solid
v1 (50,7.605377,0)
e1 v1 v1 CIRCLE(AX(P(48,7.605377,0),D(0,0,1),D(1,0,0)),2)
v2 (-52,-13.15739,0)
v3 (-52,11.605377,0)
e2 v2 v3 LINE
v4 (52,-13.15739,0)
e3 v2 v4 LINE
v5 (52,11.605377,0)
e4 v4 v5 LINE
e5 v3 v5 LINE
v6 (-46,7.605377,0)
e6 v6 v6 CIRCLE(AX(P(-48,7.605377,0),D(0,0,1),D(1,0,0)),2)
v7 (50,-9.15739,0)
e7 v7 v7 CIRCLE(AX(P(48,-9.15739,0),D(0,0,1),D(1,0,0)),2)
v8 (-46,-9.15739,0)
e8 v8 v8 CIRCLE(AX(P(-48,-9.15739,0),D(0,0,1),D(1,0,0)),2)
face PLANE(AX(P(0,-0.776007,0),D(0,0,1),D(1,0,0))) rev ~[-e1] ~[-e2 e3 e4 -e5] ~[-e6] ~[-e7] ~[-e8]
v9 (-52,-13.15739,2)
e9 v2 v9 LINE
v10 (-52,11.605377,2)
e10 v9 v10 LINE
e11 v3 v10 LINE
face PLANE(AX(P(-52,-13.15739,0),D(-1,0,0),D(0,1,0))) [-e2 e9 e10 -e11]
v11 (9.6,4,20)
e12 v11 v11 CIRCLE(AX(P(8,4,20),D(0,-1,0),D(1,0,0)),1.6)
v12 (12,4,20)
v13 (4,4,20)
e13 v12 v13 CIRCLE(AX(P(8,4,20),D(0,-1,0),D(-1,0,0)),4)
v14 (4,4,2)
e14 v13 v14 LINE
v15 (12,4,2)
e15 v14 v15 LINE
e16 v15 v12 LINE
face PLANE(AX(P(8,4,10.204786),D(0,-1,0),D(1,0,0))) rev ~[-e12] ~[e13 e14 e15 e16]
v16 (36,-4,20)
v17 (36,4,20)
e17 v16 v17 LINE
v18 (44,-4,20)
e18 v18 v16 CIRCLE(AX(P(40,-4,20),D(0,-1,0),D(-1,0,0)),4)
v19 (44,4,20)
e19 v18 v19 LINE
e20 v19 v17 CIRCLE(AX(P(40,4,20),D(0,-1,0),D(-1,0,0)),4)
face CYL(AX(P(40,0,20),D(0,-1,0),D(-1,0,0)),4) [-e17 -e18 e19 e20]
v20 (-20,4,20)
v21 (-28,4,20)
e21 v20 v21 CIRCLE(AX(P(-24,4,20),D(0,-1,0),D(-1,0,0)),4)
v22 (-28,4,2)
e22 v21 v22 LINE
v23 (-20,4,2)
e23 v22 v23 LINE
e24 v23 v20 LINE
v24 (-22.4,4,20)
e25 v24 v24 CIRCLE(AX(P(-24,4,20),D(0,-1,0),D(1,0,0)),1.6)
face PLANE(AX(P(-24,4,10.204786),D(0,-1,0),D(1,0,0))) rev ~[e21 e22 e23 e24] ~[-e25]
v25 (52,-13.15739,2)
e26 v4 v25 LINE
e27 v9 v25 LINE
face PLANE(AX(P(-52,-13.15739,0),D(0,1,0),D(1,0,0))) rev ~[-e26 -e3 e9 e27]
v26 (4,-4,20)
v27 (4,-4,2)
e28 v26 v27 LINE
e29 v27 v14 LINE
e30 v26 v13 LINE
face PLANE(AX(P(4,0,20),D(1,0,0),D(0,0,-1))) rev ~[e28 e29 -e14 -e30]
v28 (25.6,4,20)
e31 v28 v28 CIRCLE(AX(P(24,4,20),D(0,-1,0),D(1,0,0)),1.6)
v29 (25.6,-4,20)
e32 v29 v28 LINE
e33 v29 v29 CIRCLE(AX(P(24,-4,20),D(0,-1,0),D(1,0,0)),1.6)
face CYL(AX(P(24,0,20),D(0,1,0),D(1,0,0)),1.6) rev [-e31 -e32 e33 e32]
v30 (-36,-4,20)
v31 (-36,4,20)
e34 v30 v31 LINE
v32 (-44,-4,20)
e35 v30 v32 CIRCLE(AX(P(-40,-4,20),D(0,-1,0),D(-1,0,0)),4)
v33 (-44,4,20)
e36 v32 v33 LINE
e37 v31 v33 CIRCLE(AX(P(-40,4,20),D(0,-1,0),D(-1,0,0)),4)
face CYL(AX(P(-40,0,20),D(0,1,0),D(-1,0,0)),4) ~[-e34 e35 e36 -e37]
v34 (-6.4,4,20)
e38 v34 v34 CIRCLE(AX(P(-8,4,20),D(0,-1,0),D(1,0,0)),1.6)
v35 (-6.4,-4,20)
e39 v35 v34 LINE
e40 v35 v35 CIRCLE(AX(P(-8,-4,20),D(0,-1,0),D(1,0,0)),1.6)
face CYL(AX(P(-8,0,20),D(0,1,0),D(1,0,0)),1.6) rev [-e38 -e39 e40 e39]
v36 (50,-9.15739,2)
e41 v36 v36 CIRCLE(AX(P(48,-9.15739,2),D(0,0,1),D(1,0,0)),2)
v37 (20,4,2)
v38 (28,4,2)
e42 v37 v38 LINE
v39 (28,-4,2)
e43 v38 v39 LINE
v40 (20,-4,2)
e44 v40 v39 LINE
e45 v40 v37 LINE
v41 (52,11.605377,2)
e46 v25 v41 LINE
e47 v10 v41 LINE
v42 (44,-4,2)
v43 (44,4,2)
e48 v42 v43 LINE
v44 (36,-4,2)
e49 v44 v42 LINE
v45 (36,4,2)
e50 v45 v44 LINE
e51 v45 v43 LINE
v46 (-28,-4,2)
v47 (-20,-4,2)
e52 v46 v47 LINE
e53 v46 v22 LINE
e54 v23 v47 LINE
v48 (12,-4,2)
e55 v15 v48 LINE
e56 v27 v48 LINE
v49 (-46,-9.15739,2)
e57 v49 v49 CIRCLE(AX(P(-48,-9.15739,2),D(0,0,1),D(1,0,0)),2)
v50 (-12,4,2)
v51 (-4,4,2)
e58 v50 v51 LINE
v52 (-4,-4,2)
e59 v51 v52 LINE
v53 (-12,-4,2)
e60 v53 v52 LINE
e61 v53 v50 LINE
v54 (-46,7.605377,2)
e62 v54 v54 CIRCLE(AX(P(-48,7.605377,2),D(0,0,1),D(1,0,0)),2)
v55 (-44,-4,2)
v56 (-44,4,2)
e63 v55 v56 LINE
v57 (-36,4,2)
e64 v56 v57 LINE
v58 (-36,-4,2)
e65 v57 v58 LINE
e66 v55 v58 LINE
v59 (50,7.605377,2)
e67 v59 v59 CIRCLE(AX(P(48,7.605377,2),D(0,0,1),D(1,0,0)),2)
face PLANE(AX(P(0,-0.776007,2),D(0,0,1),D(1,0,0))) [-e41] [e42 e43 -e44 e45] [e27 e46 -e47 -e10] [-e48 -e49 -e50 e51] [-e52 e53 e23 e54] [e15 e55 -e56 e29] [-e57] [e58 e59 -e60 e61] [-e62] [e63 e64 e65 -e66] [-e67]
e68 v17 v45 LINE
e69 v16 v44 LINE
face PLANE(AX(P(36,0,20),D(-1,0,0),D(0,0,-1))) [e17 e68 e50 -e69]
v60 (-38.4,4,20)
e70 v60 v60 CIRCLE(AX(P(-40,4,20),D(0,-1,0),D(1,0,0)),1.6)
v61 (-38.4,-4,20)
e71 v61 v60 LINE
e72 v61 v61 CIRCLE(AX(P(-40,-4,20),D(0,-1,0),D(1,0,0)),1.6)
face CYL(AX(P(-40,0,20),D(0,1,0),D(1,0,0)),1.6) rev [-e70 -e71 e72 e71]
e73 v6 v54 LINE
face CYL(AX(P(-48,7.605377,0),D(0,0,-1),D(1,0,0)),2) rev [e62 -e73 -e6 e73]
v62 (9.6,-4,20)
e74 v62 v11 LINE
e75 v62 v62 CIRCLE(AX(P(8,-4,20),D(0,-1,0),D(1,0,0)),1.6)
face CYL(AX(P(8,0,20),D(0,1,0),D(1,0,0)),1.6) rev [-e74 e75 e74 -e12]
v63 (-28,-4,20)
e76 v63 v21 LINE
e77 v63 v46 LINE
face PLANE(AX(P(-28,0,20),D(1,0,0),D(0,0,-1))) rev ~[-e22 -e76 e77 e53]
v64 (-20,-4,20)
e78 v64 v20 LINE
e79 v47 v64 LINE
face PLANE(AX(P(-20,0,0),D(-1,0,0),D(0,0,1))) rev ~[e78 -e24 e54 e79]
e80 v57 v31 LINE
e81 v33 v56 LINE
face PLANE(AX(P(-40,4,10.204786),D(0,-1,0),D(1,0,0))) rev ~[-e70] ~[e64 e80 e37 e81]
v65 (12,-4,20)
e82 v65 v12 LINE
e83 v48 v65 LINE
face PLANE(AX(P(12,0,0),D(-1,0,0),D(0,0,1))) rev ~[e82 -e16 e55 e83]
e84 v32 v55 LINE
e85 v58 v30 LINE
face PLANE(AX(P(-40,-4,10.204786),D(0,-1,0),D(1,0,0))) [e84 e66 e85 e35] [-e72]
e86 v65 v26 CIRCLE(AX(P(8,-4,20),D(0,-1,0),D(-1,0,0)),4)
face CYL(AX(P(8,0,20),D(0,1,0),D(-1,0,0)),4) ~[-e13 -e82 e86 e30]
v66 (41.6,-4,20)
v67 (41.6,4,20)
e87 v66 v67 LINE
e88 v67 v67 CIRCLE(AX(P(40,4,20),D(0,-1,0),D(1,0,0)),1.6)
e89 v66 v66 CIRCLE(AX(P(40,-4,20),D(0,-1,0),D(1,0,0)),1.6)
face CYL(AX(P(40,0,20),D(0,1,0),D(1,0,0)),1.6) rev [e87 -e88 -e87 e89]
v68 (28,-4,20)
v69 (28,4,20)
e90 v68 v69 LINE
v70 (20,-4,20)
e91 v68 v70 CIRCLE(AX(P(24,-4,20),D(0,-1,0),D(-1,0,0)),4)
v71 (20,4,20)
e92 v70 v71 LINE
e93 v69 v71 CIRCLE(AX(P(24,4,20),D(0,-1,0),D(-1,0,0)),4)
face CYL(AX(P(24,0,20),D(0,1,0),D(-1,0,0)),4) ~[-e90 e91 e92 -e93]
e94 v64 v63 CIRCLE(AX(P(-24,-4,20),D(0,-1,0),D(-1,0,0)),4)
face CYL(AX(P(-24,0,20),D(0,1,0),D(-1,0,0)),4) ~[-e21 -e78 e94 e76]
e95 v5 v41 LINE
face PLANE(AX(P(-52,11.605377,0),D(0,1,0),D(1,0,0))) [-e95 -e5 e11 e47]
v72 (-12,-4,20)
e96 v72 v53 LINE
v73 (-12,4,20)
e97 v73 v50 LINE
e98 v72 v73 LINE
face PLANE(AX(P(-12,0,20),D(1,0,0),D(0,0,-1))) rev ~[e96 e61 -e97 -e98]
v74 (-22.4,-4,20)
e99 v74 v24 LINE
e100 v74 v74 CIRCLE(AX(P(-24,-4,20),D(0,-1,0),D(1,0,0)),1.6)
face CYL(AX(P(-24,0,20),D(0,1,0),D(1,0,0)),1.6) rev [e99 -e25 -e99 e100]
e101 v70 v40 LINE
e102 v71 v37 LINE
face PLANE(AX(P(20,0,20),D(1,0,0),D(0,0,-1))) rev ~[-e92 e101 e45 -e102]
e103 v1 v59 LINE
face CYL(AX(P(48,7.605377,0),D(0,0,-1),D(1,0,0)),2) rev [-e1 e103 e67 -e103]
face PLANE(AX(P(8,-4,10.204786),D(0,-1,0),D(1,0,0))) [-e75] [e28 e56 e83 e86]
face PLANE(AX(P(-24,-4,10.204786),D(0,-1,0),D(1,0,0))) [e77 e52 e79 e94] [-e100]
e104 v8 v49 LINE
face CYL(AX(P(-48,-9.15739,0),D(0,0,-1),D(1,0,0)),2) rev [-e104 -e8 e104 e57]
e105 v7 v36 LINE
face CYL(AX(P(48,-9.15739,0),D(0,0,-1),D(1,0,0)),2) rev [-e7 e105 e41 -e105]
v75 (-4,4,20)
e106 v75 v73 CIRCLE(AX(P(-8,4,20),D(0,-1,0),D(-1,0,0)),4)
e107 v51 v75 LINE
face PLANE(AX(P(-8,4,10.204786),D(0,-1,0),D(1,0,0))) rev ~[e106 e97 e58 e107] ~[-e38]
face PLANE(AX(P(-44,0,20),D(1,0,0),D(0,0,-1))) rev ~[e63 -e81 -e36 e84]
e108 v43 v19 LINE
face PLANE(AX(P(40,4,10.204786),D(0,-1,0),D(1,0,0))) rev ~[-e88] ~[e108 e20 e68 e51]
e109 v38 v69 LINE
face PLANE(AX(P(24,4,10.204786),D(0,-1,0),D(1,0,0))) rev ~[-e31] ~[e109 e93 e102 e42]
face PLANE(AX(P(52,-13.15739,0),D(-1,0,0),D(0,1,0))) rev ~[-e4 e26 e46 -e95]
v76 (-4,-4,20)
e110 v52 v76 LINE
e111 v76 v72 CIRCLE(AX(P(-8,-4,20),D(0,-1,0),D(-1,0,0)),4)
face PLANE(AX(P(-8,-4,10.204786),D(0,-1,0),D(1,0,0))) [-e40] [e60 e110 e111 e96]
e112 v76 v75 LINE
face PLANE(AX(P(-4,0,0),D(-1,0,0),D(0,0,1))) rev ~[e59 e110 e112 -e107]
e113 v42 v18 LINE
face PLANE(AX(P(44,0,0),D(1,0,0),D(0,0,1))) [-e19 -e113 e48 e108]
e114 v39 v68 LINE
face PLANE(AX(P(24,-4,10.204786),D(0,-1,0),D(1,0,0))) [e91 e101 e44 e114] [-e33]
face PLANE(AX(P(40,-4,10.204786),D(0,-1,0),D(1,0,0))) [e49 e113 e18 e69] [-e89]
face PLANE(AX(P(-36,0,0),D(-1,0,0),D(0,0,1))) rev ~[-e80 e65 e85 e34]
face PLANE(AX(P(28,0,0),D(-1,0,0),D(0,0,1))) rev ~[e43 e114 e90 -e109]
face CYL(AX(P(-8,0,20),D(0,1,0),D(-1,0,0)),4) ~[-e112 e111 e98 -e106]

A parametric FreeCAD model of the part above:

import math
import FreeCAD as App
import Part
import Sketcher
from FreeCAD import Vector
Q = App.Units.Quantity


def add_polygon(sketch, points):
    """Adds a closed chain of lines whose ends are joined by coincident constraints."""
    first, n = sketch.GeometryCount, len(points)
    for a, b in zip(points, points[1:] + points[:1]):
        sketch.addGeometry(Part.LineSegment(App.Vector(*a, 0), App.Vector(*b, 0)), False)
    for i in range(n):
        sketch.addConstraint(Sketcher.Constraint("Coincident", first + i, 2, first + (i + 1) % n, 1))

doc = App.newDocument("Part")
body = doc.addObject("PartDesign::Body", "Body")

# Sketch on XY plane
sketch1 = body.newObject("Sketcher::SketchObject", "Sketch")
sketch1.AttachmentSupport = (doc.getObject("XY_Plane"), [""])
sketch1.MapMode = "FlatFace"
add_polygon(sketch1, [(-52, 11.6), (-52, -13.2), (52, -13.2), (52, 11.6)])  # lines 0-3
sketch1.addGeometry(Part.Circle(Vector(-48, -9.2, 0), Vector(0, 0, 1), 2), False)  # 4
sketch1.addGeometry(Part.Circle(Vector(48, -9.2, 0), Vector(0, 0, 1), 2), False)  # 5
sketch1.addGeometry(Part.Circle(Vector(-48, 7.6, 0), Vector(0, 0, 1), 2), False)  # 6
sketch1.addGeometry(Part.Circle(Vector(48, 7.6, 0), Vector(0, 0, 1), 2), False)  # 7
sketch1.addConstraint([
    Sketcher.Constraint("Vertical", 0),
    Sketcher.Constraint("Horizontal", 1),
    Sketcher.Constraint("Vertical", 2),
    Sketcher.Constraint("Horizontal", 3),
    Sketcher.Constraint("Equal", 4, 5),
    Sketcher.Constraint("Equal", 5, 6),
    Sketcher.Constraint("Equal", 6, 7),
    Sketcher.Constraint("Symmetric", 4, 3, 5, 3, -2),
    Sketcher.Constraint("Symmetric", 6, 3, 7, 3, -2),
    Sketcher.Constraint("Vertical", 4, 3, 6, 3),
    Sketcher.Constraint("Diameter", 4, Q("4 mm")),
    Sketcher.Constraint("DistanceX", 1, 1, 1, 2, Q("104 mm")),
    Sketcher.Constraint("DistanceX", 4, 3, -1, 1, Q("48 mm")),
    Sketcher.Constraint("DistanceX", 0, 2, -1, 1, Q("52 mm")),
    Sketcher.Constraint("DistanceY", 0, 2, 4, 3, Q("4.000001 mm")),
    Sketcher.Constraint("DistanceY", 7, 3, 2, 2, Q("4 mm")),
    Sketcher.Constraint("DistanceY", 0, 2, 0, 1, Q("24.762767 mm")),
    Sketcher.Constraint("DistanceY", 4, 3, -1, 1, Q("9.15739 mm")),
])
pad1 = body.newObject("PartDesign::Pad", "Pad")
pad1.Profile = sketch1
pad1.Length = 2

# Sketch on XZ plane
sketch2 = body.newObject("Sketcher::SketchObject", "Sketch001")
sketch2.AttachmentSupport = (doc.getObject("XZ_Plane"), [""])
sketch2.MapMode = "FlatFace"
sketch2.addGeometry([
    Part.LineSegment(Vector(-28, 20, 0), Vector(-28, 0, 0)),  # 0
    Part.LineSegment(Vector(-28, 0, 0), Vector(-20, 0, 0)),  # 1
    Part.LineSegment(Vector(-20, 0, 0), Vector(-20, 20, 0)),  # 2
    Part.ArcOfCircle(Part.Circle(Vector(-24, 20, 0), Vector(0, 0, 1), 4), math.radians(0), math.radians(180)),  # 3
    Part.Circle(Vector(-24, 20, 0), Vector(0, 0, 1), 1.6),  # 4
    Part.LineSegment(Vector(20, 20, 0), Vector(20, 0, 0)),  # 5
    Part.LineSegment(Vector(20, 0, 0), Vector(28, 0, 0)),  # 6
    Part.LineSegment(Vector(28, 0, 0), Vector(28, 20, 0)),  # 7
    Part.ArcOfCircle(Part.Circle(Vector(24, 20, 0), Vector(0, 0, 1), 4), math.radians(0), math.radians(180)),  # 8
    Part.Circle(Vector(24, 20, 0), Vector(0, 0, 1), 1.6),  # 9
    Part.LineSegment(Vector(-44, 20, 0), Vector(-44, 0, 0)),  # 10
    Part.LineSegment(Vector(-44, 0, 0), Vector(-36, 0, 0)),  # 11
    Part.LineSegment(Vector(-36, 0, 0), Vector(-36, 20, 0)),  # 12
    Part.ArcOfCircle(Part.Circle(Vector(-40, 20, 0), Vector(0, 0, 1), 4), math.radians(0), math.radians(180)),  # 13
    Part.Circle(Vector(-40, 20, 0), Vector(0, 0, 1), 1.6),  # 14
    Part.LineSegment(Vector(-12, 20, 0), Vector(-12, 0, 0)),  # 15
    Part.LineSegment(Vector(-12, 0, 0), Vector(-4, 0, 0)),  # 16
    Part.LineSegment(Vector(-4, 0, 0), Vector(-4, 20, 0)),  # 17
    Part.ArcOfCircle(Part.Circle(Vector(-8, 20, 0), Vector(0, 0, 1), 4), math.radians(0), math.radians(180)),  # 18
    Part.Circle(Vector(-8, 20, 0), Vector(0, 0, 1), 1.6),  # 19
    Part.LineSegment(Vector(4, 20, 0), Vector(4, 0, 0)),  # 20
    Part.LineSegment(Vector(4, 0, 0), Vector(12, 0, 0)),  # 21
    Part.LineSegment(Vector(12, 0, 0), Vector(12, 20, 0)),  # 22
    Part.ArcOfCircle(Part.Circle(Vector(8, 20, 0), Vector(0, 0, 1), 4), math.radians(0), math.radians(180)),  # 23
    Part.Circle(Vector(8, 20, 0), Vector(0, 0, 1), 1.6),  # 24
    Part.LineSegment(Vector(36, 20, 0), Vector(36, 0, 0)),  # 25
    Part.LineSegment(Vector(36, 0, 0), Vector(44, 0, 0)),  # 26
    Part.LineSegment(Vector(44, 0, 0), Vector(44, 20, 0)),  # 27
    Part.ArcOfCircle(Part.Circle(Vector(40, 20, 0), Vector(0, 0, 1), 4), math.radians(0), math.radians(180)),  # 28
    Part.Circle(Vector(40, 20, 0), Vector(0, 0, 1), 1.6),  # 29
], False)
sketch2.addConstraint([
    Sketcher.Constraint("Coincident", 0, 2, 1, 1),
    Sketcher.Constraint("Coincident", 1, 2, 2, 1),
    Sketcher.Constraint("Tangent", 2, 2, 3, 1),
    Sketcher.Constraint("Tangent", 3, 2, 0, 1),
    Sketcher.Constraint("Coincident", 5, 2, 6, 1),
    Sketcher.Constraint("Coincident", 6, 2, 7, 1),
    Sketcher.Constraint("Tangent", 7, 2, 8, 1),
    Sketcher.Constraint("Tangent", 8, 2, 5, 1),
    Sketcher.Constraint("Coincident", 10, 2, 11, 1),
    Sketcher.Constraint("Coincident", 11, 2, 12, 1),
    Sketcher.Constraint("Tangent", 12, 2, 13, 1),
    Sketcher.Constraint("Tangent", 13, 2, 10, 1),
    Sketcher.Constraint("Coincident", 15, 2, 16, 1),
    Sketcher.Constraint("Coincident", 16, 2, 17, 1),
    Sketcher.Constraint("Tangent", 17, 2, 18, 1),
    Sketcher.Constraint("Tangent", 18, 2, 15, 1),
    Sketcher.Constraint("Coincident", 20, 2, 21, 1),
    Sketcher.Constraint("Coincident", 21, 2, 22, 1),
    Sketcher.Constraint("Tangent", 22, 2, 23, 1),
    Sketcher.Constraint("Tangent", 23, 2, 20, 1),
    Sketcher.Constraint("Coincident", 25, 2, 26, 1),
    Sketcher.Constraint("Coincident", 26, 2, 27, 1),
    Sketcher.Constraint("Tangent", 27, 2, 28, 1),
    Sketcher.Constraint("Tangent", 28, 2, 25, 1),
    Sketcher.Constraint("Vertical", 0),
    Sketcher.Constraint("Horizontal", 1),
    Sketcher.Constraint("Vertical", 2),
    Sketcher.Constraint("Vertical", 5),
    Sketcher.Constraint("Horizontal", 6),
    Sketcher.Constraint("Vertical", 7),
    Sketcher.Constraint("Vertical", 10),
    Sketcher.Constraint("Horizontal", 11),
    Sketcher.Constraint("Vertical", 12),
    Sketcher.Constraint("Vertical", 15),
    Sketcher.Constraint("Horizontal", 16),
    Sketcher.Constraint("Vertical", 17),
    Sketcher.Constraint("Vertical", 20),
    Sketcher.Constraint("Horizontal", 21),
    Sketcher.Constraint("Vertical", 22),
    Sketcher.Constraint("Vertical", 25),
    Sketcher.Constraint("Horizontal", 26),
    Sketcher.Constraint("Vertical", 27),
    Sketcher.Constraint("Coincident", 4, 3, 3, 3),
    Sketcher.Constraint("Coincident", 9, 3, 8, 3),
    Sketcher.Constraint("Coincident", 14, 3, 13, 3),
    Sketcher.Constraint("Coincident", 19, 3, 18, 3),
    Sketcher.Constraint("Coincident", 24, 3, 23, 3),
    Sketcher.Constraint("Coincident", 29, 3, 28, 3),
    Sketcher.Constraint("Equal", 3, 8),
    Sketcher.Constraint("Equal", 4, 9),
    Sketcher.Constraint("Equal", 8, 13),
    Sketcher.Constraint("Equal", 9, 14),
    Sketcher.Constraint("Equal", 13, 18),
    Sketcher.Constraint("Equal", 14, 19),
    Sketcher.Constraint("Equal", 18, 23),
    Sketcher.Constraint("Equal", 19, 24),
    Sketcher.Constraint("Equal", 23, 28),
    Sketcher.Constraint("Equal", 24, 29),
    Sketcher.Constraint("Symmetric", 1, 2, 5, 2, -1, 1),
    Sketcher.Constraint("Symmetric", 16, 2, 20, 2, -1, 1),
    Sketcher.Constraint("Symmetric", 11, 2, 25, 2, -1, 1),
    Sketcher.Constraint("PointOnObject", 0, 2, -1),
    Sketcher.Constraint("PointOnObject", 10, 2, -1),
    Sketcher.Constraint("PointOnObject", 15, 2, -1),
    Sketcher.Constraint("Horizontal", 4, 3, 8, 3),
    Sketcher.Constraint("Horizontal", 9, 3, 13, 3),
    Sketcher.Constraint("Horizontal", 14, 3, 18, 3),
    Sketcher.Constraint("Horizontal", 19, 3, 23, 3),
    Sketcher.Constraint("Horizontal", 24, 3, 28, 3),
    Sketcher.Constraint("Radius", 3, Q("4 mm")),
    Sketcher.Constraint("Diameter", 4, Q("3.2 mm")),
    Sketcher.Constraint("DistanceY", 0, 2, 0, 1, Q("20 mm")),
    Sketcher.Constraint("DistanceX", 3, 3, -1, 1, Q("24 mm")),
    Sketcher.Constraint("DistanceX", 13, 3, -1, 1, Q("40 mm")),
    Sketcher.Constraint("DistanceX", 18, 3, -1, 1, Q("8 mm")),
])
pad2 = body.newObject("PartDesign::Pad", "Pad001")
pad2.Profile = sketch2
pad2.Length = 8
pad2.Midplane = True

doc.recompute()
